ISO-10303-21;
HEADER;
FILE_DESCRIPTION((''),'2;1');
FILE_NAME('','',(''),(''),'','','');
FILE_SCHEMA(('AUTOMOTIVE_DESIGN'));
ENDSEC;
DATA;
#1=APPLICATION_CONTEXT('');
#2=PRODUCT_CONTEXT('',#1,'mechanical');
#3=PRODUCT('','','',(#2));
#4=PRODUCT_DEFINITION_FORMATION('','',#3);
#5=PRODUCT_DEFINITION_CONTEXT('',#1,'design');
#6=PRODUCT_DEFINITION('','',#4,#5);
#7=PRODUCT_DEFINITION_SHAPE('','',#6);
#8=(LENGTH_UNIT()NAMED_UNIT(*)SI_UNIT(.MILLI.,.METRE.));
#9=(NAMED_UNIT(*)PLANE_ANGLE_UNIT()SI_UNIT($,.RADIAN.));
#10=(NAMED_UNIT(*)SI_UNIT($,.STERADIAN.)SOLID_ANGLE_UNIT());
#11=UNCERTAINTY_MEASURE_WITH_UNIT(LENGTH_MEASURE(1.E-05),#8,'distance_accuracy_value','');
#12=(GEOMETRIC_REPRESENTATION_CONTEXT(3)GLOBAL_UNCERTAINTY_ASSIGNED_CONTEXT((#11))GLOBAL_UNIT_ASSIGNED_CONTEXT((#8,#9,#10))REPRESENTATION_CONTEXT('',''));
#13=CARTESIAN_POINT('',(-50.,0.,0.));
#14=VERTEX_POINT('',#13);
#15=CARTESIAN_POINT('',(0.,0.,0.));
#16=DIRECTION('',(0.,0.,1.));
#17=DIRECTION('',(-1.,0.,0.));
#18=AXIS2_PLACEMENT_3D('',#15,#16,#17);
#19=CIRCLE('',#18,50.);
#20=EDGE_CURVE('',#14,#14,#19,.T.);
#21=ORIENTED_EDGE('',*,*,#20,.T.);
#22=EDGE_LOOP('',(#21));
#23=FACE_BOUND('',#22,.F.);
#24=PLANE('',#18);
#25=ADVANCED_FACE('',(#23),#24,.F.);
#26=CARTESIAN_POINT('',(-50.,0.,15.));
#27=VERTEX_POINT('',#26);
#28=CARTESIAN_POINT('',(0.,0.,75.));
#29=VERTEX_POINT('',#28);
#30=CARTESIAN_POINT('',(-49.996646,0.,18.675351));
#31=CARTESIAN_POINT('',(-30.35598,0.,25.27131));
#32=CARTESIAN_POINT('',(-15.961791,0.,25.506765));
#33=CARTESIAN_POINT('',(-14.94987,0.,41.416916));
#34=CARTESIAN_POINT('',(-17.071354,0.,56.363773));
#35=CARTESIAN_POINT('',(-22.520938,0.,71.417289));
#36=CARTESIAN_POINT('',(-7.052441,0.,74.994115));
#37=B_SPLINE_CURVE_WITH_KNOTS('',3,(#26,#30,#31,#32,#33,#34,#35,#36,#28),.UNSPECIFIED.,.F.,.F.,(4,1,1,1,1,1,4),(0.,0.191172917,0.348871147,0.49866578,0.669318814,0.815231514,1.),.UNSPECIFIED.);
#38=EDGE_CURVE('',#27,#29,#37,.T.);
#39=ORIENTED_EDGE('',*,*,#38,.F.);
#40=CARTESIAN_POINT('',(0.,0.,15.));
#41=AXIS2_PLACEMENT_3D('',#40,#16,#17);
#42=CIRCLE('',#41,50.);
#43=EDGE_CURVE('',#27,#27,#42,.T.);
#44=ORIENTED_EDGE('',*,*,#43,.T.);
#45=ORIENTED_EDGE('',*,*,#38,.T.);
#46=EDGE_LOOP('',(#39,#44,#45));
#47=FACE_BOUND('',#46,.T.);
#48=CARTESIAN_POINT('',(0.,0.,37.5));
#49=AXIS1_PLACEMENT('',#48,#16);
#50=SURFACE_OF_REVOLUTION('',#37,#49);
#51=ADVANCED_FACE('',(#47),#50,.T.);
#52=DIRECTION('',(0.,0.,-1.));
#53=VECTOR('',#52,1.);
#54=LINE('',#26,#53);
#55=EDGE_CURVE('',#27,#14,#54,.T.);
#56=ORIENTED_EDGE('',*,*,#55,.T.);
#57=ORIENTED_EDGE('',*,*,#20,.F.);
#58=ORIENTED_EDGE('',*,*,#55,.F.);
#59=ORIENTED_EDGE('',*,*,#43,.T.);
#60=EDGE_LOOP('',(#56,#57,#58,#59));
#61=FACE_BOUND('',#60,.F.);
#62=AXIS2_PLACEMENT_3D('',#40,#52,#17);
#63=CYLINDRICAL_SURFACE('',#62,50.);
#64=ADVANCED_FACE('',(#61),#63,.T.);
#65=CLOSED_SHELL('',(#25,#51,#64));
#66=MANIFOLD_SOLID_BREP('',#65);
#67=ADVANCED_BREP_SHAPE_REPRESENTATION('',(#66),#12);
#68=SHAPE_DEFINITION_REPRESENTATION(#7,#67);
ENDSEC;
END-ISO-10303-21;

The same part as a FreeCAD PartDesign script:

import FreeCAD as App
import Part
import Sketcher

doc = App.newDocument("Part")
body = doc.addObject("PartDesign::Body", "Body")

# Sketch on XZ plane
sketch1 = body.newObject("Sketcher::SketchObject", "Sketch")
sketch1.AttachmentSupport = (doc.getObject("XZ_Plane"), [""])
sketch1.MapMode = "FlatFace"
sketch1.addGeometry(Part.LineSegment(App.Vector(-50, 0, 0), App.Vector(0, 0, 0)), False)
sketch1.addGeometry(Part.LineSegment(App.Vector(0, 0, 0), App.Vector(0, 75, 0)), False)
sketch1.addGeometry(Part.BSplineCurve([App.Vector(-50, 15, 0), App.Vector(-49.996646, 18.675351, 0), App.Vector(-30.35598, 25.27131, 0), App.Vector(-15.961791, 25.506765, 0), App.Vector(-14.94987, 41.416916, 0), App.Vector(-17.071354, 56.363773, 0), App.Vector(-22.520938, 71.417289, 0), App.Vector(-7.052441, 74.994115, 0), App.Vector(0, 75, 0)], [4, 1, 1, 1, 1, 1, 4], [0, 0.191172917, 0.348871147, 0.49866578, 0.669318814, 0.815231514, 1], False, 3, [1, 1, 1, 1, 1, 1, 1, 1, 1], False), False)
sketch1.addGeometry(Part.LineSegment(App.Vector(-50, 15, 0), App.Vector(-50, 0, 0)), False)
sketch1.addConstraint(Sketcher.Constraint("Block", 2))
sketch1.addConstraint(Sketcher.Constraint("Coincident", 0, 2, 1, 1))
sketch1.addConstraint(Sketcher.Constraint("Coincident", 1, 2, 2, 2))
sketch1.addConstraint(Sketcher.Constraint("Coincident", 2, 1, 3, 1))
sketch1.addConstraint(Sketcher.Constraint("Coincident", 3, 2, 0, 1))
sketch1.addConstraint(Sketcher.Constraint("Horizontal", 0))
sketch1.addConstraint(Sketcher.Constraint("Vertical", 1))
sketch1.addConstraint(Sketcher.Constraint("Vertical", 3))
sketch1.addConstraint(Sketcher.Constraint("PointOnObject", 3, 2, -1))
revolution = body.newObject("PartDesign::Revolution", "Revolution")
revolution.Profile = sketch1
revolution.ReferenceAxis = (sketch1, ["V_Axis"])
revolution.Angle = 360

doc.recompute()
